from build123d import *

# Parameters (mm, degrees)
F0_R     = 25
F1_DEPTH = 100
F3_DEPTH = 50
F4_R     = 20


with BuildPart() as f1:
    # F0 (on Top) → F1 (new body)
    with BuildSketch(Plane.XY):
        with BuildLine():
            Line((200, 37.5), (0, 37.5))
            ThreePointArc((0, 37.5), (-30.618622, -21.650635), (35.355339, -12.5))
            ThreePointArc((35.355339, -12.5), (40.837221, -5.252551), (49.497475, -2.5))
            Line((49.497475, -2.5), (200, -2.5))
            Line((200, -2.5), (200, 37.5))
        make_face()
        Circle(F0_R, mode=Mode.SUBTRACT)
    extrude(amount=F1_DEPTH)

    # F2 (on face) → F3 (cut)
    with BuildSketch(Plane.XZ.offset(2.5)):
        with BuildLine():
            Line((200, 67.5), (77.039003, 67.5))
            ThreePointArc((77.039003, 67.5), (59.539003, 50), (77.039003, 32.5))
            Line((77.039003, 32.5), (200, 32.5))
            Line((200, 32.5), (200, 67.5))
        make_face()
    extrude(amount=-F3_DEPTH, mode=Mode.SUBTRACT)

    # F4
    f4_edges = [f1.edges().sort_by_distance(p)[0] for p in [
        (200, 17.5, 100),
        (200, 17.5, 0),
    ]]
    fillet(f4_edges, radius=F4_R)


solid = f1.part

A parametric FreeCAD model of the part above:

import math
import FreeCAD as App
import Part
import Sketcher

V = App.Vector
Q = App.Units.Quantity


def edges_at(feature, points):
    """Names of the edges that pass closest to the given points."""
    edges = feature.Shape.Edges
    near = lambda p: min(range(len(edges)), key=lambda i: edges[i].distToShape(Part.Vertex(*p))[0])
    return sorted({f"Edge{near(p) + 1}" for p in points})

doc = App.newDocument("Part")
body = doc.addObject("PartDesign::Body", "Body")

# Sketch on XY plane
sketch1 = doc.addObject("Sketcher::SketchObject", "Sketch")
body.addObject(sketch1)
sketch1.AttachmentSupport = (doc.XY_Plane, [""])
sketch1.MapMode = "FlatFace"
sketch1.addGeometry(Part.LineSegment(V(200, 37.5, 0), V(0, 37.5, 0)), False)
sketch1.addGeometry(Part.ArcOfCircle(Part.Circle(V(0, 0, 0), V(0, 0, 1), 37.5), math.radians(90), math.radians(340.528779)), False)
sketch1.addGeometry(Part.ArcOfCircle(Part.Circle(V(49.497475, -17.5, 0), V(0, 0, 1), 15), math.radians(89.999999), math.radians(160.528779)), False)
sketch1.addGeometry(Part.LineSegment(V(49.497475, -2.5, 0), V(200, -2.5, 0)), False)
sketch1.addGeometry(Part.LineSegment(V(200, -2.5, 0), V(200, 37.5, 0)), False)
sketch1.addGeometry(Part.Circle(V(0, 0, 0), V(0, 0, 1), 25), False)
sketch1.addConstraint(Sketcher.Constraint("Tangent", 0, 2, 1, 1))
sketch1.addConstraint(Sketcher.Constraint("Tangent", 1, 2, 2, 2))
sketch1.addConstraint(Sketcher.Constraint("Tangent", 2, 1, 3, 1))
sketch1.addConstraint(Sketcher.Constraint("Coincident", 3, 2, 4, 1))
sketch1.addConstraint(Sketcher.Constraint("Coincident", 4, 2, 0, 1))
sketch1.addConstraint(Sketcher.Constraint("Horizontal", 0))
sketch1.addConstraint(Sketcher.Constraint("Horizontal", 3))
sketch1.addConstraint(Sketcher.Constraint("Vertical", 4))
sketch1.addConstraint(Sketcher.Constraint("Coincident", 1, 3, -1, 1))
sketch1.addConstraint(Sketcher.Constraint("Coincident", 5, 3, -1, 1))
sketch1.addConstraint(Sketcher.Constraint("Diameter", 5, Q("50 mm")))
sketch1.addConstraint(Sketcher.Constraint("Radius", 2, Q("15 mm")))
sketch1.addConstraint(Sketcher.Constraint("Radius", 1, Q("37.5 mm")))
sketch1.addConstraint(Sketcher.Constraint("DistanceX", 0, 2, 0, 1, Q("200 mm")))
sketch1.addConstraint(Sketcher.Constraint("DistanceY", 4, 1, 4, 2, Q("40 mm")))
pad1 = doc.addObject("PartDesign::Pad", "Pad")
body.addObject(pad1)
pad1.Profile = sketch1
pad1.Length = 100

# Sketch on XZ plane
sketch2 = doc.addObject("Sketcher::SketchObject", "Sketch001")
body.addObject(sketch2)
sketch2.AttachmentSupport = (doc.XZ_Plane, [""])
sketch2.MapMode = "FlatFace"
sketch2.AttachmentOffset = App.Placement(V(0, 0, 2.5), App.Rotation())
sketch2.addGeometry(Part.LineSegment(V(200, 67.5, 0), V(77.039003, 67.5, 0)), False)
sketch2.addGeometry(Part.ArcOfCircle(Part.Circle(V(77.039003, 50, 0), V(0, 0, 1), 17.5), math.radians(90), math.radians(270)), False)
sketch2.addGeometry(Part.LineSegment(V(77.039003, 32.5, 0), V(200, 32.5, 0)), False)
sketch2.addGeometry(Part.LineSegment(V(200, 32.5, 0), V(200, 67.5, 0)), False)
sketch2.addConstraint(Sketcher.Constraint("Tangent", 0, 2, 1, 1))
sketch2.addConstraint(Sketcher.Constraint("Tangent", 1, 2, 2, 1))
sketch2.addConstraint(Sketcher.Constraint("Coincident", 2, 2, 3, 1))
sketch2.addConstraint(Sketcher.Constraint("Coincident", 3, 2, 0, 1))
sketch2.addConstraint(Sketcher.Constraint("Horizontal", 0))
sketch2.addConstraint(Sketcher.Constraint("Horizontal", 2))
sketch2.addConstraint(Sketcher.Constraint("Vertical", 3))
sketch2.addConstraint(Sketcher.Constraint("Radius", 1, Q("17.5 mm")))
sketch2.addConstraint(Sketcher.Constraint("DistanceY", -1, 1, 1, 3, Q("50 mm")))
sketch2.addConstraint(Sketcher.Constraint("DistanceX", -1, 1, 2, 2, Q("200 mm")))
sketch2.addConstraint(Sketcher.Constraint("DistanceX", 0, 2, 0, 1, Q("122.960997 mm")))
pocket1 = doc.addObject("PartDesign::Pocket", "Pocket")
body.addObject(pocket1)
pocket1.Profile = sketch2
pocket1.Length = 50
doc.recompute()

fillet = doc.addObject("PartDesign::Fillet", "Fillet")
body.addObject(fillet)
fillet.Base = (pocket1, edges_at(pocket1, [(200, 17.5, 100), (200, 17.5, 0)]))
fillet.Radius = 20

doc.recompute()
